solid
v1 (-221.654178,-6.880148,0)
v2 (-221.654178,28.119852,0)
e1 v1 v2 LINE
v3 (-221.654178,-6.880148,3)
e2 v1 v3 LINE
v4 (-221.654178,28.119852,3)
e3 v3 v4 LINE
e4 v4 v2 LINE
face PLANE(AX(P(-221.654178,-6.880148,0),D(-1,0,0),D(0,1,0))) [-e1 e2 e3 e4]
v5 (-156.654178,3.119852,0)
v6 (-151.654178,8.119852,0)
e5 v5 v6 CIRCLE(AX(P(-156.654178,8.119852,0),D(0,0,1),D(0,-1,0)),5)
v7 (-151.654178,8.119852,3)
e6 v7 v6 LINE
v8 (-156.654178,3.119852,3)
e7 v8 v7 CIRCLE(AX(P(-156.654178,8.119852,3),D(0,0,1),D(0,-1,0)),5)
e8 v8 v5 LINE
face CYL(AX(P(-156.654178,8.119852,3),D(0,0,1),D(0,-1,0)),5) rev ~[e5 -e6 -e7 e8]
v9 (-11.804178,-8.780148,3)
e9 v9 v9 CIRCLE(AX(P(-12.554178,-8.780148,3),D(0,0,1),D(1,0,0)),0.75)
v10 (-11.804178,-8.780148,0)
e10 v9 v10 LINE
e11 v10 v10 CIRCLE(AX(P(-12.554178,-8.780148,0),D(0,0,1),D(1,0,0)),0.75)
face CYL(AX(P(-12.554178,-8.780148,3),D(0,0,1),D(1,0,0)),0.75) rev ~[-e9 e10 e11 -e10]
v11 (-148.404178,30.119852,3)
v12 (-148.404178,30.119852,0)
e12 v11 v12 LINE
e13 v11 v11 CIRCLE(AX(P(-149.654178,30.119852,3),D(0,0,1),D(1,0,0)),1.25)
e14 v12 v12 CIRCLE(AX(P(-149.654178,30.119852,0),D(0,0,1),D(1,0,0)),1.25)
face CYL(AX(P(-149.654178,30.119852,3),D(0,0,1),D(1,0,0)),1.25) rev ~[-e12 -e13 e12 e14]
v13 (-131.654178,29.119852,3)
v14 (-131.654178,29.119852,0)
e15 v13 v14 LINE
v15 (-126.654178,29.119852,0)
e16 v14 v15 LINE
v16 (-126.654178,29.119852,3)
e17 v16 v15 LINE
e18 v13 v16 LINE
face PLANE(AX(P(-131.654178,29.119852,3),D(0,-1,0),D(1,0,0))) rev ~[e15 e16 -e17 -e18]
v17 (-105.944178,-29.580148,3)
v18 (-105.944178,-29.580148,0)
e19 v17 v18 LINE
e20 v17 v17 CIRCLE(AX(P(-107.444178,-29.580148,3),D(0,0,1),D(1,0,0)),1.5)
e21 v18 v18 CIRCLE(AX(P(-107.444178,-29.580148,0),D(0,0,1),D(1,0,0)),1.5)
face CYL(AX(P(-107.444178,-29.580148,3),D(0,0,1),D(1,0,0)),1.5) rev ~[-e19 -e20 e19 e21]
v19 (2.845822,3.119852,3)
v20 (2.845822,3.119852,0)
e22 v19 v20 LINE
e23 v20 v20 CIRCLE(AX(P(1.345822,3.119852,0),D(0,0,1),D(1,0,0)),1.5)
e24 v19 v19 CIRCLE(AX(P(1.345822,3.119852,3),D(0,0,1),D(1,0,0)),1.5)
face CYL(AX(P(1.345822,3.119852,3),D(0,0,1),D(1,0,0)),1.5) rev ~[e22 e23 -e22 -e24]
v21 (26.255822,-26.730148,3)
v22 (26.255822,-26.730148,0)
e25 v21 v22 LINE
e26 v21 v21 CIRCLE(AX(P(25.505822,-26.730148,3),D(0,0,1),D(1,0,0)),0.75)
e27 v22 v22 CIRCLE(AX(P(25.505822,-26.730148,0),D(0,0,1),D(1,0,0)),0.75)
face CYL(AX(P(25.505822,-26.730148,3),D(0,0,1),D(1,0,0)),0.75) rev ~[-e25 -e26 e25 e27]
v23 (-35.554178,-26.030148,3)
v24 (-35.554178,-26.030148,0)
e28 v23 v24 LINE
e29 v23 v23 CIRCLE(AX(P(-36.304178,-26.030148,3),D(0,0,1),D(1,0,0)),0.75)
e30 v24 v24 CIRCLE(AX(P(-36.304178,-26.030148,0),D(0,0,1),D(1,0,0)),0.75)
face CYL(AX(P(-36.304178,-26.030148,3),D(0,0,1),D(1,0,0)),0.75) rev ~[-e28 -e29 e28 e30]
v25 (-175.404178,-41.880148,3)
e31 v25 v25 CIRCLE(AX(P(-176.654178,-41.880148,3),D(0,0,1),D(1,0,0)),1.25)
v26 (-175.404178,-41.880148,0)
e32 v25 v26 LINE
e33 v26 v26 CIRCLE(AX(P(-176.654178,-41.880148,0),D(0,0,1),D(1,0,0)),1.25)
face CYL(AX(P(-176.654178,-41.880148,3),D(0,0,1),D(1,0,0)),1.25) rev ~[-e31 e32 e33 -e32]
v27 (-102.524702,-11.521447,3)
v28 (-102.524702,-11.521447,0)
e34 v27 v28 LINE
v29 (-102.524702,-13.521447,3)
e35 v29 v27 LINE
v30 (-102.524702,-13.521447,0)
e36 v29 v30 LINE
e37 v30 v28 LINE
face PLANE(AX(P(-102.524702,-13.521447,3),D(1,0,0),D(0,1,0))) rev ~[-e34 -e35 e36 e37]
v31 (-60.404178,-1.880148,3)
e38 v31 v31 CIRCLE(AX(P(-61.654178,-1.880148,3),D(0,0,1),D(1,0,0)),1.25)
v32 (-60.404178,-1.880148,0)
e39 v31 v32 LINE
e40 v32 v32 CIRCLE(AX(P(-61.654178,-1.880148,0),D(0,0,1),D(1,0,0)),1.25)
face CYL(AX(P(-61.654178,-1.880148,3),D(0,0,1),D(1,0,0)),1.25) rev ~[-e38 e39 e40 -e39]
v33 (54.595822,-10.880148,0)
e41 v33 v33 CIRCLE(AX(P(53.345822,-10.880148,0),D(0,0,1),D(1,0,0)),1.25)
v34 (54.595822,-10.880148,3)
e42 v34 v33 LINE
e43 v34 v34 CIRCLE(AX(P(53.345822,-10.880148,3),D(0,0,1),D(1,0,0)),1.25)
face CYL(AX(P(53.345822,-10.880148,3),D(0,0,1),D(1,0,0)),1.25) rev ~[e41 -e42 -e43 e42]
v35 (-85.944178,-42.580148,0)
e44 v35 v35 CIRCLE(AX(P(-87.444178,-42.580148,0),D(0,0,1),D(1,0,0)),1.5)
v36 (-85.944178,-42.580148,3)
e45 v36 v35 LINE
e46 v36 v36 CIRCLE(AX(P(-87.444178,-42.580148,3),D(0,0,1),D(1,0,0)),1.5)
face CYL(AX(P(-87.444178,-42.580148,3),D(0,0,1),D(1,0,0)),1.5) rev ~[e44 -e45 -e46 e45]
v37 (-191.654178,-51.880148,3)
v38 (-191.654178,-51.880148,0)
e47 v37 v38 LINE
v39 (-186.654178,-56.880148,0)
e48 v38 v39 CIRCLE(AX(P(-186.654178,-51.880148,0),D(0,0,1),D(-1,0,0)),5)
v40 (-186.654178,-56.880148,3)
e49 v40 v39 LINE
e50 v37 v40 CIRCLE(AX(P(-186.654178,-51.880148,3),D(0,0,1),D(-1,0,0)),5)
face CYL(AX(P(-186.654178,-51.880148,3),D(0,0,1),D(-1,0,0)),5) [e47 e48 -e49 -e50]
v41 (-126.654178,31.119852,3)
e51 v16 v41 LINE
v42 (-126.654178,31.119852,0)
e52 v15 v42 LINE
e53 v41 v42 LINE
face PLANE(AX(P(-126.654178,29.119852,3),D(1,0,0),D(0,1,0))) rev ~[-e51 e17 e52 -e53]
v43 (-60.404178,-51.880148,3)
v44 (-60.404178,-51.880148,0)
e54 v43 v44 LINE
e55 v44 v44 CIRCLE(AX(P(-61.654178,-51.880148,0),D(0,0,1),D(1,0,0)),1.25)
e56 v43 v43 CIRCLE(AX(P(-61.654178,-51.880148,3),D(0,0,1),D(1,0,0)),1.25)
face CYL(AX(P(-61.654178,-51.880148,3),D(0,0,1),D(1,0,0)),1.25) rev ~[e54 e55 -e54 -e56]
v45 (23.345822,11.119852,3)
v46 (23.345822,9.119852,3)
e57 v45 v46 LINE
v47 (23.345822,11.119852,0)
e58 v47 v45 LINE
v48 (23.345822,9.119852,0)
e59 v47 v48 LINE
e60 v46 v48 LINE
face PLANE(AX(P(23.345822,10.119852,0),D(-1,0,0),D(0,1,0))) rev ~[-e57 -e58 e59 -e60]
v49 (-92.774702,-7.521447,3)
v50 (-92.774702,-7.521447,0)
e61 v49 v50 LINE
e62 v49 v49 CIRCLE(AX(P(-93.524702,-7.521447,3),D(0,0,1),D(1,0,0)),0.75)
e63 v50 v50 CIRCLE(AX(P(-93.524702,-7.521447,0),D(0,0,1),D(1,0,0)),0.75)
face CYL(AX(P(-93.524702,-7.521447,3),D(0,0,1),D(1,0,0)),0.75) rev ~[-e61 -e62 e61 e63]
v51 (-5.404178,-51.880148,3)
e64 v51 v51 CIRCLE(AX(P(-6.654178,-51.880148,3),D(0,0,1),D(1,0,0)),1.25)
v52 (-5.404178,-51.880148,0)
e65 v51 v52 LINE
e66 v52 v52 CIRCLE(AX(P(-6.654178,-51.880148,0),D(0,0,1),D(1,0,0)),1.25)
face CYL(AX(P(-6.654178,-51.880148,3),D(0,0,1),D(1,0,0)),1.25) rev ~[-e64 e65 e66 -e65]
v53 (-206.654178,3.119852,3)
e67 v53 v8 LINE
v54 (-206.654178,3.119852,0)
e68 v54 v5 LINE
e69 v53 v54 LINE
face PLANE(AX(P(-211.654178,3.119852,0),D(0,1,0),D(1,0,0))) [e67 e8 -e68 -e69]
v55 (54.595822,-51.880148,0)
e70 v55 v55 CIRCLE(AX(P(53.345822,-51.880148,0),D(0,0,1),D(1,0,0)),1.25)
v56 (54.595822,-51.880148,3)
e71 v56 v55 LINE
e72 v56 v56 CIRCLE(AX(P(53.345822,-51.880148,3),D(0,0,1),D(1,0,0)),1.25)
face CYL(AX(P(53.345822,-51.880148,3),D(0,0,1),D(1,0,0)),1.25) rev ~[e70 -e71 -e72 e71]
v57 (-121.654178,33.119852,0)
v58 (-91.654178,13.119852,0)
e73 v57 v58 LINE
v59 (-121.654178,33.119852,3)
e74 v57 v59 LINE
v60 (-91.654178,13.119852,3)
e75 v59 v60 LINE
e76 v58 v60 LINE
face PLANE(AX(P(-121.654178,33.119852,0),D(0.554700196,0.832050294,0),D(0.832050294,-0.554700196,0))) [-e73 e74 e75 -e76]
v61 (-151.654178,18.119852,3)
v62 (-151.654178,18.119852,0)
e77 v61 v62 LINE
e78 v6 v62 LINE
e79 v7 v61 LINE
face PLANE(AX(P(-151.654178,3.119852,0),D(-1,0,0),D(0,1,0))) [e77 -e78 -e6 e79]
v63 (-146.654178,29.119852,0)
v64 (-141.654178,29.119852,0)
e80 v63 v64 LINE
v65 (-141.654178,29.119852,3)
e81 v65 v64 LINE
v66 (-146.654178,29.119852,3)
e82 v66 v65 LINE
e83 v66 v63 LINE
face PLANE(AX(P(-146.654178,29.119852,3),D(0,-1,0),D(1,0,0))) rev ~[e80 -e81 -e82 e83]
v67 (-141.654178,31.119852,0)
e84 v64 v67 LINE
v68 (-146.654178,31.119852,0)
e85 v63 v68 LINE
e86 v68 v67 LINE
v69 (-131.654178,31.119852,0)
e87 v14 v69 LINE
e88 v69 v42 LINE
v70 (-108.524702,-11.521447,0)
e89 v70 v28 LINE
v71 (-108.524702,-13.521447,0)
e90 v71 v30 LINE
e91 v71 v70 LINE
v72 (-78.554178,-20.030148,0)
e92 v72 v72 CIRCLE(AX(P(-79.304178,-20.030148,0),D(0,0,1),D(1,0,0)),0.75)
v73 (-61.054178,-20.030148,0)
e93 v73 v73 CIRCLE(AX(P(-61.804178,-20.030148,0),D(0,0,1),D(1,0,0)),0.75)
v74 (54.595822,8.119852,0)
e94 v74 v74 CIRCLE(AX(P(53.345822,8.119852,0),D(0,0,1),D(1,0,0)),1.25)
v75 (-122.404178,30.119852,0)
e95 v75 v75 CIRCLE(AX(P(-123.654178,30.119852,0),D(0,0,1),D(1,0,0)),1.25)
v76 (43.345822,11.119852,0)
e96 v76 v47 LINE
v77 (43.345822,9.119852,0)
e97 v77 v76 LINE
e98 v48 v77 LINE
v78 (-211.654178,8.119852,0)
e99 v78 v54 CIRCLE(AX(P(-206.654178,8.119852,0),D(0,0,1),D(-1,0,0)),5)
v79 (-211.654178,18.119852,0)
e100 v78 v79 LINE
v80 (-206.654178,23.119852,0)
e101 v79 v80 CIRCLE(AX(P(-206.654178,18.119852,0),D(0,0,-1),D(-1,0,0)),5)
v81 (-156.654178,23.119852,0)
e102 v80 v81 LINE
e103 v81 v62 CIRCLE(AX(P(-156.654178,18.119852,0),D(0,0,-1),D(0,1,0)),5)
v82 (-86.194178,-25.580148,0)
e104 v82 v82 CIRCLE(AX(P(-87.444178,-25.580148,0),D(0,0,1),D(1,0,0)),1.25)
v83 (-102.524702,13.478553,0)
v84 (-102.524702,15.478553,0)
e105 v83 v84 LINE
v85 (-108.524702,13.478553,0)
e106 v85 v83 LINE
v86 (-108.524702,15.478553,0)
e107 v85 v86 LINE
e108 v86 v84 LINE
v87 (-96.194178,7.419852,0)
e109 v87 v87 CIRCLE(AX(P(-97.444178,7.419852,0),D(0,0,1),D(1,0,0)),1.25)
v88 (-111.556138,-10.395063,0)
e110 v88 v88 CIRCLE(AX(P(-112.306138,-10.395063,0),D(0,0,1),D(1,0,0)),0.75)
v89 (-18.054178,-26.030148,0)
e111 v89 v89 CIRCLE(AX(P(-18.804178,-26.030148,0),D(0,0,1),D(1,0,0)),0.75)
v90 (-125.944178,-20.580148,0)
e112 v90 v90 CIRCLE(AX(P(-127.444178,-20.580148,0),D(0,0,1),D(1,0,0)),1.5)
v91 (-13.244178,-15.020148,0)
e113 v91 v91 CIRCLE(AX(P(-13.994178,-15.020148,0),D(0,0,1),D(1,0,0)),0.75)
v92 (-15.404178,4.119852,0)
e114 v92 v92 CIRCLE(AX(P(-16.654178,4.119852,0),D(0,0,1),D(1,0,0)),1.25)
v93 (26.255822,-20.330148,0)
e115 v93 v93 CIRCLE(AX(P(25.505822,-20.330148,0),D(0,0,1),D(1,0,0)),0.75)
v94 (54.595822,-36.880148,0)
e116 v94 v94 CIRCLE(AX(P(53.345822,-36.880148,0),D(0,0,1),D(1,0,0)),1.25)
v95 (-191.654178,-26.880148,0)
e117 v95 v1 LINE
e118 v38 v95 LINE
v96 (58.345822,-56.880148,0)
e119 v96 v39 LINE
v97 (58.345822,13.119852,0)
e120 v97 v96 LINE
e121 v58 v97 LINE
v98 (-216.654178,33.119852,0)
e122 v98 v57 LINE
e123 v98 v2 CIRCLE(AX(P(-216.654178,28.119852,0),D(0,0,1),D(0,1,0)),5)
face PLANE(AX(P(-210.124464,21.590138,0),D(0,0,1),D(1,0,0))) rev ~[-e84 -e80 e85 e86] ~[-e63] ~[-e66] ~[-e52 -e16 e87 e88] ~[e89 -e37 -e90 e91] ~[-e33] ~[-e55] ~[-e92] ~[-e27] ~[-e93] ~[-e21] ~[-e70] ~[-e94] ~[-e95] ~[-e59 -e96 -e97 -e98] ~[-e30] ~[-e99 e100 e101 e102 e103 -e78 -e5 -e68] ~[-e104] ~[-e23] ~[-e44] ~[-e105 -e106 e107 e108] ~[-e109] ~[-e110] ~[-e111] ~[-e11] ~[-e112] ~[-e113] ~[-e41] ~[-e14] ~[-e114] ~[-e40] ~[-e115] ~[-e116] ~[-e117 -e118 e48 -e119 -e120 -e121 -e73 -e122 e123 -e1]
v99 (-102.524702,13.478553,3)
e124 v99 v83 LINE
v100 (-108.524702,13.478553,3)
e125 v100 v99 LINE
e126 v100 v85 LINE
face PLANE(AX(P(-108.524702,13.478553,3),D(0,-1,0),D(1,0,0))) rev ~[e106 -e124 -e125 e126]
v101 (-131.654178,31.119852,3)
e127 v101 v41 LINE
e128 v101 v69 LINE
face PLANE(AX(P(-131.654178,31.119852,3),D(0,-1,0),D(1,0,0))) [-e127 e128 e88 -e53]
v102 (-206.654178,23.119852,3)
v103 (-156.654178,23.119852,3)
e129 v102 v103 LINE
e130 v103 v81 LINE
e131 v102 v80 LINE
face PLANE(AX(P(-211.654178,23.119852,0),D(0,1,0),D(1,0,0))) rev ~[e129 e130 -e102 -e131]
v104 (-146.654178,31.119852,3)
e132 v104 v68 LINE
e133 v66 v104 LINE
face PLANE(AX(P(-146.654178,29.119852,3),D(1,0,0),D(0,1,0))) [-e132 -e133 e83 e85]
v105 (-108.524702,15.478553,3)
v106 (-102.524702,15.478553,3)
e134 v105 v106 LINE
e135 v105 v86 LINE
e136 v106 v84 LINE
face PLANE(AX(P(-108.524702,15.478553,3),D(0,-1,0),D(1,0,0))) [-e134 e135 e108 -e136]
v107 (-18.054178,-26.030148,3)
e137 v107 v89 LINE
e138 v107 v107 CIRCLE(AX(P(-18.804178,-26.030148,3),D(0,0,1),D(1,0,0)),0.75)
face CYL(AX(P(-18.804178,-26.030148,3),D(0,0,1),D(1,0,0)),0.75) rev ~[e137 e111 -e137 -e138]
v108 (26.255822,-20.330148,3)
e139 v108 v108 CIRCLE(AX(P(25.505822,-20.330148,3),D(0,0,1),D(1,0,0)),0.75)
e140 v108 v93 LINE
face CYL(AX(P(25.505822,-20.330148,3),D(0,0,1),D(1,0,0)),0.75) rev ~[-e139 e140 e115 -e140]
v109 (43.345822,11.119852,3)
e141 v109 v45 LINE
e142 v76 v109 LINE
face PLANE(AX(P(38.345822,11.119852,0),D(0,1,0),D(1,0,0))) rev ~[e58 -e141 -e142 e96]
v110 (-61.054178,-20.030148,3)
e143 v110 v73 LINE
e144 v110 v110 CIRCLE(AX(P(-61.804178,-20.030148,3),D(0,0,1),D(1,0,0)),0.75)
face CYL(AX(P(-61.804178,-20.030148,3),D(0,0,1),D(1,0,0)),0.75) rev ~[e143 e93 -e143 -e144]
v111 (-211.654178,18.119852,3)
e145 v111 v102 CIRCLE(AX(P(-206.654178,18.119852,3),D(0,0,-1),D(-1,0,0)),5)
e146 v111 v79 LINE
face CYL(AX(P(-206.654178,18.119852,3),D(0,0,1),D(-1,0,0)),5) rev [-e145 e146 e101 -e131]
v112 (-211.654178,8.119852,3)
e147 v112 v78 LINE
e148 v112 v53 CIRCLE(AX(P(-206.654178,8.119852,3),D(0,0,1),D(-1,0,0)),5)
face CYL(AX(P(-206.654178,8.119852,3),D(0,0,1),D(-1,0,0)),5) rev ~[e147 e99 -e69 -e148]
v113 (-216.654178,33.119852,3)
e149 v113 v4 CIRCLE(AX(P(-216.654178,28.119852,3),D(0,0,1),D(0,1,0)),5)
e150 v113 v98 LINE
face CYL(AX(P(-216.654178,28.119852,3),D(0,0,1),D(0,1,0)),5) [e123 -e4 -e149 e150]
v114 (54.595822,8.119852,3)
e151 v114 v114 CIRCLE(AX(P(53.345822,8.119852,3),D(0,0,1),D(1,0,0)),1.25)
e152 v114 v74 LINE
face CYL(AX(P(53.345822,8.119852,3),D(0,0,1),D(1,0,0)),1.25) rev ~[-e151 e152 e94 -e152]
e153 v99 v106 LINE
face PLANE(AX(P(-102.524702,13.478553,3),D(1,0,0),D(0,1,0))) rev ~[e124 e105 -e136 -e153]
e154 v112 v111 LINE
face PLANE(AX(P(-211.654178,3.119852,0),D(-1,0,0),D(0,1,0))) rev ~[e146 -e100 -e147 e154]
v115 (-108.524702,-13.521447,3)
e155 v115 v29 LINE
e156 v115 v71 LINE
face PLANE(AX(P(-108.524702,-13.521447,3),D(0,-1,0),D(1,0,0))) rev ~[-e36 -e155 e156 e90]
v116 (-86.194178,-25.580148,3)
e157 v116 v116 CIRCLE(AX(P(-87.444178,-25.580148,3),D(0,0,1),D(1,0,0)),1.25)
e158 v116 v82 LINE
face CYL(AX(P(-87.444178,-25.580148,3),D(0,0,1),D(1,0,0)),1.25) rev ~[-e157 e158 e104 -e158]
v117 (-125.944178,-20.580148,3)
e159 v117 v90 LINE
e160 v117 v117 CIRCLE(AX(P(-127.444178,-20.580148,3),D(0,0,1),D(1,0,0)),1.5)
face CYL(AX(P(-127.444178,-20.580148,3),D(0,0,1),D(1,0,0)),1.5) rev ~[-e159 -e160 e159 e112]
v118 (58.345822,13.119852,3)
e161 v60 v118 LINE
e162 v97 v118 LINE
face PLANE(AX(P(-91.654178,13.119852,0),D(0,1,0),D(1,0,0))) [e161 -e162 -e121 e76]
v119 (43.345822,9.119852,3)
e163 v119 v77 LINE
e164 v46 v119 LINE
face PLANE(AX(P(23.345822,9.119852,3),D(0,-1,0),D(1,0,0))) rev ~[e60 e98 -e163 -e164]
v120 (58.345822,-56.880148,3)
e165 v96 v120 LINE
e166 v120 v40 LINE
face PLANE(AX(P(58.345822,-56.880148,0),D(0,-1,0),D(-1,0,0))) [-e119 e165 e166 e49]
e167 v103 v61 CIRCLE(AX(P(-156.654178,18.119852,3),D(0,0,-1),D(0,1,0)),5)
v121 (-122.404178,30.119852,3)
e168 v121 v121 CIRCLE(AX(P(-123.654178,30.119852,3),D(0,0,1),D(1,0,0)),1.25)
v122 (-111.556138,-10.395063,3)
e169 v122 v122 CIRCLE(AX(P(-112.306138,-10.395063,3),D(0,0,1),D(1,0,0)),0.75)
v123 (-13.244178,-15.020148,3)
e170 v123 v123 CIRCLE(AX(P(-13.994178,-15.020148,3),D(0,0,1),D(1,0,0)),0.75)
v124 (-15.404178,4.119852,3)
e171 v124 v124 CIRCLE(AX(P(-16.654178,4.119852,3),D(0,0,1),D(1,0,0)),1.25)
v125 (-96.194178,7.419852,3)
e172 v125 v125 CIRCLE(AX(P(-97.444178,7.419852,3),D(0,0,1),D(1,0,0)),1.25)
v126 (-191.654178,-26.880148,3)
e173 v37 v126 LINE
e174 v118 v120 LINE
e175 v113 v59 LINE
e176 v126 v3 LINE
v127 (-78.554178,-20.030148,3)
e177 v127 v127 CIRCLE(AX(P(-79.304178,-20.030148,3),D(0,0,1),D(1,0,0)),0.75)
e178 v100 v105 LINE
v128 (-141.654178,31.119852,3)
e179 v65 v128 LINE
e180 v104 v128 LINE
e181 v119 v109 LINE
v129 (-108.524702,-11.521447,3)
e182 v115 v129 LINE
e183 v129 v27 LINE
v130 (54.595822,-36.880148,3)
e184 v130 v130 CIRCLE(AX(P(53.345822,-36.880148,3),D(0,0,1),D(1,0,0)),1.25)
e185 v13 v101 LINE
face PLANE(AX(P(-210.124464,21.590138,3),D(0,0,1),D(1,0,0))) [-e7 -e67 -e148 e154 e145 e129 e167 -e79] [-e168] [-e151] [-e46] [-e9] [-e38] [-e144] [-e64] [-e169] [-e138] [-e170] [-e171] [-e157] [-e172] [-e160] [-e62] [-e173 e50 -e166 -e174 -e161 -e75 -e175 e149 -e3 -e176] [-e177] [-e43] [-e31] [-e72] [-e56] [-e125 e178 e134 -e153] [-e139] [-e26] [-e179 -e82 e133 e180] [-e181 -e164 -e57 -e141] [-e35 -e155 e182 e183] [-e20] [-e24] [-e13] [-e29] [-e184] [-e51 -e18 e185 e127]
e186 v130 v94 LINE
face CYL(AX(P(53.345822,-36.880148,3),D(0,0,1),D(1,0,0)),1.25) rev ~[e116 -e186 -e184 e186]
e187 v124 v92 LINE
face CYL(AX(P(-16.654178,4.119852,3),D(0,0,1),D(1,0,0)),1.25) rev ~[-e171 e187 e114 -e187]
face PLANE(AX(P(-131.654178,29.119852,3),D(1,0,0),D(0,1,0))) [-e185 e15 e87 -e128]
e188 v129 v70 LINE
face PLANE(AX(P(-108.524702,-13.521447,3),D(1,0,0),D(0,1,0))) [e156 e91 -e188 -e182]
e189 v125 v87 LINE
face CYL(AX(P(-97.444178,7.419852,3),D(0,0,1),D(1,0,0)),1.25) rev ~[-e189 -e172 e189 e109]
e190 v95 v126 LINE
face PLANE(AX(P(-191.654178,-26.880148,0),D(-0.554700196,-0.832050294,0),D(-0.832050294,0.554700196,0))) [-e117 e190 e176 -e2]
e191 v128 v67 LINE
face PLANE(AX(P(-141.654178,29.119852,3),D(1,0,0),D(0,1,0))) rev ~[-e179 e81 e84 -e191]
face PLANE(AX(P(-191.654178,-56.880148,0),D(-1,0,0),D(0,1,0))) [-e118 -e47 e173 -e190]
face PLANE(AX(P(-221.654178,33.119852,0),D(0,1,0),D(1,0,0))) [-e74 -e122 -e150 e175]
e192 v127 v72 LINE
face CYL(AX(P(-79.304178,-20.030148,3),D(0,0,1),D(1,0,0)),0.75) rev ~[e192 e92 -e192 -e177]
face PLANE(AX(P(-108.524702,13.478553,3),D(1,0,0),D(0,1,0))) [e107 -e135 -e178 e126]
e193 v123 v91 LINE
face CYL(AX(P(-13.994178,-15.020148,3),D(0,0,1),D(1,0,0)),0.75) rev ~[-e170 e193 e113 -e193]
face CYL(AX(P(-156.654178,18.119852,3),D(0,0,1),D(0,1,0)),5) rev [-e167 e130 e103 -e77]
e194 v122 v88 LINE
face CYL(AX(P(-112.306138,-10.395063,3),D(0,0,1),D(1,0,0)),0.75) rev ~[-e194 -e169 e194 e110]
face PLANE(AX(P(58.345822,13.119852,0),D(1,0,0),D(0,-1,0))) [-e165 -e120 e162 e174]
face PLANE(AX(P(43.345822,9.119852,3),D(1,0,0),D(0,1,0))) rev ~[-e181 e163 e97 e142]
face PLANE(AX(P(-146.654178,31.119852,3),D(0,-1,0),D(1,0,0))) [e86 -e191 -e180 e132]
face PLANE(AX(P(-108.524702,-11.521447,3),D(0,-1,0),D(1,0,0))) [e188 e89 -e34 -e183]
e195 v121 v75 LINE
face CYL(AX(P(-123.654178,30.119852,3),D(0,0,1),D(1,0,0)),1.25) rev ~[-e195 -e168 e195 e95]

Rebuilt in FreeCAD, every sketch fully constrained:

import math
import FreeCAD as App
import Part
import Sketcher

V = App.Vector
Q = App.Units.Quantity


def add_polygon(sketch, points):
    """Adds a closed chain of lines whose ends are joined by coincident constraints."""
    first, n = sketch.GeometryCount, len(points)
    for a, b in zip(points, points[1:] + points[:1]):
        sketch.addGeometry(Part.LineSegment(App.Vector(*a, 0), App.Vector(*b, 0)), False)
    for i in range(n):
        sketch.addConstraint(Sketcher.Constraint("Coincident", first + i, 2, first + (i + 1) % n, 1))

doc = App.newDocument("Part")
body = doc.addObject("PartDesign::Body", "Body")

sketch1 = body.newObject("Sketcher::SketchObject", "Sketch")
sketch1.AttachmentSupport = (doc.getObject("XY_Plane"), [""])
sketch1.MapMode = "FlatFace"
add_polygon(sketch1, [(58.3, -56.9), (58.3, 13.1), (-91.7, 13.1), (-121.7, 33.1), (-221.7, 33.1), (-221.7, -6.9), (-191.7, -26.9), (-191.7, -56.9)])
sketch1.addGeometry(Part.Circle(V(53.3, -52.1, 0), V(0, 0, 1), 1.2), False)
sketch1.addGeometry(Part.Circle(V(25.5, -18.3, 0), V(0, 0, 1), 0.8), False)
sketch1.addGeometry(Part.Circle(V(53.3, 7.9, 0), V(0, 0, 1), 1.2), False)
add_polygon(sketch1, [(38.3, 10.1), (38.3, 11.1), (43.3, 11.1), (43.3, 10.1)])
add_polygon(sketch1, [(23.3, 10.1), (23.3, 11.1), (28.3, 11.1), (28.3, 10.1)])
add_polygon(sketch1, [(-211.7, 3.1), (-211.7, 23.1), (-151.7, 23.1), (-151.7, 3.1)])
sketch1.addConstraint([
    Sketcher.Constraint("Vertical", 0),
    Sketcher.Constraint("Horizontal", 1),
    Sketcher.Constraint("Horizontal", 3),
    Sketcher.Constraint("Vertical", 4),
    Sketcher.Constraint("Vertical", 6),
    Sketcher.Constraint("Horizontal", 7),
    Sketcher.Constraint("Vertical", 11),
    Sketcher.Constraint("Horizontal", 12),
    Sketcher.Constraint("Vertical", 13),
    Sketcher.Constraint("Horizontal", 14),
    Sketcher.Constraint("Vertical", 15),
    Sketcher.Constraint("Horizontal", 16),
    Sketcher.Constraint("Vertical", 17),
    Sketcher.Constraint("Horizontal", 18),
    Sketcher.Constraint("Vertical", 19),
    Sketcher.Constraint("Horizontal", 20),
    Sketcher.Constraint("Vertical", 21),
    Sketcher.Constraint("Horizontal", 22),
    Sketcher.Constraint("Equal", 8, 10),
    Sketcher.Constraint("Parallel", 2, 5),
    Sketcher.Constraint("Horizontal", 12, 2, 15, 2),
    Sketcher.Constraint("Horizontal", 14, 2, 17, 2),
    Sketcher.Constraint("Vertical", 8, 3, 10, 3),
    Sketcher.Constraint("Equal", 14, 16),
    Sketcher.Constraint("Equal", 2, 5),
    Sketcher.Constraint("Diameter", 8, Q("2.5 mm")),
    Sketcher.Constraint("Diameter", 9, Q("1.5 mm")),
    Sketcher.Constraint("DistanceX", 1, 2, 1, 1, Q("150 mm")),
    Sketcher.Constraint("DistanceX", 3, 2, 3, 1, Q("100 mm")),
    Sketcher.Constraint("DistanceX", 12, 1, 12, 2, Q("5 mm")),
    Sketcher.Constraint("DistanceX", 20, 1, 20, 2, Q("60 mm")),
    Sketcher.Constraint("DistanceY", 0, 1, 0, 2, Q("70 mm")),
    Sketcher.Constraint("DistanceY", 4, 2, 4, 1, Q("40 mm")),
    Sketcher.Constraint("DistanceY", 11, 1, 11, 2, Q("1 mm")),
    Sketcher.Constraint("DistanceY", 19, 1, 19, 2, Q("20 mm")),
    Sketcher.Constraint("DistanceY", 8, 3, 10, 3, Q("60 mm")),
    Sketcher.Constraint("DistanceX", 10, 3, 0, 2, Q("5 mm")),
    Sketcher.Constraint("DistanceX", 2, 2, 1, 2, Q("30 mm")),
    Sketcher.Constraint("DistanceY", 1, 2, 2, 2, Q("20 mm")),
    Sketcher.Constraint("DistanceX", 11, 2, 10, 3, Q("15 mm")),
    Sketcher.Constraint("DistanceY", 11, 2, 0, 2, Q("2 mm")),
    Sketcher.Constraint("DistanceX", 15, 2, 11, 2, Q("15 mm")),
    Sketcher.Constraint("DistanceX", 3, 2, 19, 2, Q("10 mm")),
    Sketcher.Constraint("DistanceY", 19, 2, 3, 2, Q("10 mm")),
    Sketcher.Constraint("DistanceX", 9, 3, 8, 3, Q("27.84 mm")),
    Sketcher.Constraint("DistanceY", 9, 3, 0, 2, Q("31.45 mm")),
    Sketcher.Constraint("DistanceX", -1, 1, 8, 3, Q("53.345822 mm")),
    Sketcher.Constraint("DistanceY", 8, 3, -1, 1, Q("52.054458 mm")),
    Sketcher.Constraint("DistanceY", 8, 3, 9, 3, Q("33.72431 mm")),
])
pad1 = body.newObject("PartDesign::Pad", "Pad")
pad1.Profile = sketch1
pad1.Length = 3

sketch2 = body.newObject("Sketcher::SketchObject", "Sketch001")
sketch2.AttachmentSupport = (doc.getObject("XY_Plane"), [""])
sketch2.MapMode = "FlatFace"
sketch2.AttachmentOffset = App.Placement(V(0, 0, 3), App.Rotation())
sketch2.addGeometry(Part.Circle(V(-12.6, -8.8, 0), V(0, 0, 1), 0.8), False)
sketch2.addConstraint([
    Sketcher.Constraint("Diameter", 0, Q("1.5 mm")),
    Sketcher.Constraint("DistanceX", 0, 3, -1, 1, Q("12.554178 mm")),
    Sketcher.Constraint("DistanceY", 0, 3, -1, 1, Q("8.780148 mm")),
])
pocket1 = body.newObject("PartDesign::Pocket", "Pocket")
pocket1.Profile = sketch2
pocket1.Length = 3

sketch3 = body.newObject("Sketcher::SketchObject", "Sketch002")
sketch3.AttachmentSupport = (doc.getObject("XY_Plane"), [""])
sketch3.MapMode = "FlatFace"
sketch3.AttachmentOffset = App.Placement(V(0, 0, 3), App.Rotation())
sketch3.addGeometry(Part.Circle(V(-14, -15, 0), V(0, 0, 1), 0.8), False)
sketch3.addConstraint([
    Sketcher.Constraint("Diameter", 0, Q("1.5 mm")),
    Sketcher.Constraint("DistanceX", 0, 3, -1, 1, Q("13.994178 mm")),
    Sketcher.Constraint("DistanceY", 0, 3, -1, 1, Q("15.020148 mm")),
])
pocket2 = body.newObject("PartDesign::Pocket", "Pocket001")
pocket2.Profile = sketch3
pocket2.Length = 3

sketch4 = body.newObject("Sketcher::SketchObject", "Sketch003")
sketch4.AttachmentSupport = (doc.getObject("XY_Plane"), [""])
sketch4.MapMode = "FlatFace"
sketch4.AttachmentOffset = App.Placement(V(0, 0, 3), App.Rotation())
sketch4.addGeometry([
    Part.Circle(V(25.5, -20.3, 0), V(0, 0, 1), 0.8),
    Part.Circle(V(25.5, -26.7, 0), V(0, 0, 1), 0.8),
], False)
sketch4.addConstraint([
    Sketcher.Constraint("Equal", 0, 1),
    Sketcher.Constraint("Vertical", 0, 3, 1, 3),
    Sketcher.Constraint("Diameter", 0, Q("1.5 mm")),
    Sketcher.Constraint("DistanceY", 1, 3, 0, 3, Q("6.4 mm")),
    Sketcher.Constraint("DistanceX", -1, 1, 0, 3, Q("25.505822 mm")),
    Sketcher.Constraint("DistanceY", 0, 3, -1, 1, Q("20.330148 mm")),
])
pocket3 = body.newObject("PartDesign::Pocket", "Pocket002")
pocket3.Profile = sketch4
pocket3.Length = 10

sketch5 = body.newObject("Sketcher::SketchObject", "Sketch004")
sketch5.AttachmentSupport = (doc.getObject("XY_Plane"), [""])
sketch5.MapMode = "FlatFace"
sketch5.addGeometry(Part.Circle(V(25.5, -18.3, 0), V(0, 0, 1), 0.8), False)
sketch5.addConstraint([
    Sketcher.Constraint("Diameter", 0, Q("1.5 mm")),
    Sketcher.Constraint("DistanceX", -1, 1, 0, 3, Q("25.505822 mm")),
    Sketcher.Constraint("DistanceY", 0, 3, -1, 1, Q("18.330148 mm")),
])
pad2 = body.newObject("PartDesign::Pad", "Pad001")
pad2.Profile = sketch5
pad2.Length = 3

sketch6 = body.newObject("Sketcher::SketchObject", "Sketch005")
sketch6.AttachmentSupport = (doc.getObject("XY_Plane"), [""])
sketch6.MapMode = "FlatFace"
sketch6.AttachmentOffset = App.Placement(V(0, 0, 3), App.Rotation())
sketch6.addGeometry(Part.Circle(V(-16.7, 4.1, 0), V(0, 0, 1), 1.2), False)
sketch6.addConstraint([
    Sketcher.Constraint("Diameter", 0, Q("2.5 mm")),
    Sketcher.Constraint("DistanceX", 0, 3, -1, 1, Q("16.654178 mm")),
    Sketcher.Constraint("DistanceY", -1, 1, 0, 3, Q("4.119852 mm")),
])
pocket4 = body.newObject("PartDesign::Pocket", "Pocket003")
pocket4.Profile = sketch6
pocket4.Length = 3

sketch7 = body.newObject("Sketcher::SketchObject", "Sketch006")
sketch7.AttachmentSupport = (doc.getObject("XY_Plane"), [""])
sketch7.MapMode = "FlatFace"
sketch7.AttachmentOffset = App.Placement(V(0, 0, 3), App.Rotation())
sketch7.addGeometry(Part.Circle(V(-93.5, -7.5, 0), V(0, 0, 1), 0.8), False)
sketch7.addConstraint([
    Sketcher.Constraint("Diameter", 0, Q("1.5 mm")),
    Sketcher.Constraint("DistanceX", 0, 3, -1, 1, Q("93.524702 mm")),
    Sketcher.Constraint("DistanceY", 0, 3, -1, 1, Q("7.521447 mm")),
])
pocket5 = body.newObject("PartDesign::Pocket", "Pocket004")
pocket5.Profile = sketch7
pocket5.Length = 10

sketch8 = body.newObject("Sketcher::SketchObject", "Sketch007")
sketch8.AttachmentSupport = (doc.getObject("XY_Plane"), [""])
sketch8.MapMode = "FlatFace"
sketch8.AttachmentOffset = App.Placement(V(0, 0, 3), App.Rotation())
add_polygon(sketch8, [(28.3, 11.1), (28.3, 10.1), (38.3, 10.1), (38.3, 11.1)])
sketch8.addConstraint([
    Sketcher.Constraint("Vertical", 0),
    Sketcher.Constraint("Horizontal", 1),
    Sketcher.Constraint("Vertical", 2),
    Sketcher.Constraint("Horizontal", 3),
    Sketcher.Constraint("DistanceX", 1, 1, 1, 2, Q("10 mm")),
    Sketcher.Constraint("DistanceY", 0, 2, 0, 1, Q("1 mm")),
    Sketcher.Constraint("DistanceX", -1, 1, 0, 2, Q("28.345822 mm")),
    Sketcher.Constraint("DistanceY", -1, 1, 0, 2, Q("10.119852 mm")),
])
pocket6 = body.newObject("PartDesign::Pocket", "Pocket005")
pocket6.Profile = sketch8
pocket6.Length = 3

sketch9 = body.newObject("Sketcher::SketchObject", "Sketch008")
sketch9.AttachmentSupport = (doc.getObject("XY_Plane"), [""])
sketch9.MapMode = "FlatFace"
sketch9.AttachmentOffset = App.Placement(V(0, 0, 3), App.Rotation())
sketch9.addGeometry(Part.Circle(V(-97.4, 7.4, 0), V(0, 0, 1), 1.2), False)
sketch9.addConstraint([
    Sketcher.Constraint("Diameter", 0, Q("2.5 mm")),
    Sketcher.Constraint("DistanceX", 0, 3, -1, 1, Q("97.444178 mm")),
    Sketcher.Constraint("DistanceY", -1, 1, 0, 3, Q("7.419852 mm")),
])
pocket7 = body.newObject("PartDesign::Pocket", "Pocket006")
pocket7.Profile = sketch9
pocket7.Length = 3

sketch10 = body.newObject("Sketcher::SketchObject", "Sketch009")
sketch10.AttachmentSupport = (doc.getObject("XY_Plane"), [""])
sketch10.MapMode = "FlatFace"
sketch10.AttachmentOffset = App.Placement(V(0, 0, 3), App.Rotation())
sketch10.addGeometry(Part.Circle(V(-176.7, -41.9, 0), V(0, 0, 1), 1.2), False)
sketch10.addConstraint([
    Sketcher.Constraint("Diameter", 0, Q("2.5 mm")),
    Sketcher.Constraint("DistanceX", 0, 3, -1, 1, Q("176.654178 mm")),
    Sketcher.Constraint("DistanceY", 0, 3, -1, 1, Q("41.880148 mm")),
])
pocket8 = body.newObject("PartDesign::Pocket", "Pocket007")
pocket8.Profile = sketch10
pocket8.Length = 3

sketch11 = body.newObject("Sketcher::SketchObject", "Sketch010")
sketch11.AttachmentSupport = (doc.getObject("XY_Plane"), [""])
sketch11.MapMode = "FlatFace"
sketch11.AttachmentOffset = App.Placement(V(0, 0, 3), App.Rotation())
add_polygon(sketch11, [(-131.7, 31.1), (-131.7, 29.1), (-126.7, 29.1), (-126.7, 31.1)])
sketch11.addConstraint([
    Sketcher.Constraint("Vertical", 0),
    Sketcher.Constraint("Horizontal", 1),
    Sketcher.Constraint("Vertical", 2),
    Sketcher.Constraint("Horizontal", 3),
    Sketcher.Constraint("DistanceX", 1, 1, 1, 2, Q("5 mm")),
    Sketcher.Constraint("DistanceY", 0, 2, 0, 1, Q("2 mm")),
    Sketcher.Constraint("DistanceX", 0, 2, -1, 1, Q("131.654178 mm")),
    Sketcher.Constraint("DistanceY", -1, 1, 0, 2, Q("29.119852 mm")),
])
pocket9 = body.newObject("PartDesign::Pocket", "Pocket008")
pocket9.Profile = sketch11
pocket9.Length = 3

sketch12 = body.newObject("Sketcher::SketchObject", "Sketch011")
sketch12.AttachmentSupport = (doc.getObject("XY_Plane"), [""])
sketch12.MapMode = "FlatFace"
sketch12.AttachmentOffset = App.Placement(V(0, 0, 3), App.Rotation())
add_polygon(sketch12, [(-146.7, 31.1), (-146.7, 29.1), (-141.7, 29.1), (-141.7, 31.1)])
sketch12.addConstraint([
    Sketcher.Constraint("Vertical", 0),
    Sketcher.Constraint("Horizontal", 1),
    Sketcher.Constraint("Vertical", 2),
    Sketcher.Constraint("Horizontal", 3),
    Sketcher.Constraint("DistanceX", 1, 1, 1, 2, Q("5 mm")),
    Sketcher.Constraint("DistanceY", 0, 2, 0, 1, Q("2 mm")),
    Sketcher.Constraint("DistanceX", 0, 2, -1, 1, Q("146.654178 mm")),
    Sketcher.Constraint("DistanceY", -1, 1, 0, 2, Q("29.119852 mm")),
])
pocket10 = body.newObject("PartDesign::Pocket", "Pocket009")
pocket10.Profile = sketch12
pocket10.Length = 3

sketch13 = body.newObject("Sketcher::SketchObject", "Sketch012")
sketch13.AttachmentSupport = (doc.getObject("XY_Plane"), [""])
sketch13.MapMode = "FlatFace"
sketch13.AttachmentOffset = App.Placement(V(0, 0, 3), App.Rotation())
sketch13.addGeometry([
    Part.Circle(V(-123.7, 30.1, 0), V(0, 0, 1), 1.2),
    Part.Circle(V(-149.7, 30.1, 0), V(0, 0, 1), 1.2),
], False)
sketch13.addConstraint([
    Sketcher.Constraint("Equal", 0, 1),
    Sketcher.Constraint("Horizontal", 0, 3, 1, 3),
    Sketcher.Constraint("Diameter", 0, Q("2.5 mm")),
    Sketcher.Constraint("DistanceX", 1, 3, 0, 3, Q("26 mm")),
    Sketcher.Constraint("DistanceX", 0, 3, -1, 1, Q("123.654178 mm")),
    Sketcher.Constraint("DistanceY", -1, 1, 0, 3, Q("30.119852 mm")),
])
pocket11 = body.newObject("PartDesign::Pocket", "Pocket010")
pocket11.Profile = sketch13
pocket11.Length = 3

sketch14 = body.newObject("Sketcher::SketchObject", "Sketch013")
sketch14.AttachmentSupport = (doc.getObject("XY_Plane"), [""])
sketch14.MapMode = "FlatFace"
sketch14.AttachmentOffset = App.Placement(V(0, 0, 3), App.Rotation())
sketch14.addGeometry(Part.Circle(V(-61.7, -1.9, 0), V(0, 0, 1), 1.2), False)
sketch14.addConstraint([
    Sketcher.Constraint("Diameter", 0, Q("2.5 mm")),
    Sketcher.Constraint("DistanceX", 0, 3, -1, 1, Q("61.654178 mm")),
    Sketcher.Constraint("DistanceY", 0, 3, -1, 1, Q("1.880148 mm")),
])
pocket12 = body.newObject("PartDesign::Pocket", "Pocket011")
pocket12.Profile = sketch14
pocket12.Length = 3

sketch15 = body.newObject("Sketcher::SketchObject", "Sketch014")
sketch15.AttachmentSupport = (doc.getObject("XY_Plane"), [""])
sketch15.MapMode = "FlatFace"
sketch15.AttachmentOffset = App.Placement(V(0, 0, 3), App.Rotation())
sketch15.addGeometry(Part.Circle(V(-87.4, -25.6, 0), V(0, 0, 1), 1.2), False)
sketch15.addConstraint([
    Sketcher.Constraint("Diameter", 0, Q("2.5 mm")),
    Sketcher.Constraint("DistanceX", 0, 3, -1, 1, Q("87.444178 mm")),
    Sketcher.Constraint("DistanceY", 0, 3, -1, 1, Q("25.580148 mm")),
])
pocket13 = body.newObject("PartDesign::Pocket", "Pocket012")
pocket13.Profile = sketch15
pocket13.Length = 3

sketch16 = body.newObject("Sketcher::SketchObject", "Sketch015")
sketch16.AttachmentSupport = (doc.getObject("XY_Plane"), [""])
sketch16.MapMode = "FlatFace"
sketch16.AttachmentOffset = App.Placement(V(0, 0, 3), App.Rotation())
sketch16.addGeometry(Part.Circle(V(-112.3, -10.4, 0), V(0, 0, 1), 0.8), False)
sketch16.addConstraint([
    Sketcher.Constraint("Diameter", 0, Q("1.5 mm")),
    Sketcher.Constraint("DistanceX", 0, 3, -1, 1, Q("112.306138 mm")),
    Sketcher.Constraint("DistanceY", 0, 3, -1, 1, Q("10.395063 mm")),
])
pocket14 = body.newObject("PartDesign::Pocket", "Pocket013")
pocket14.Profile = sketch16
pocket14.Length = 3

sketch17 = body.newObject("Sketcher::SketchObject", "Sketch016")
sketch17.AttachmentSupport = (doc.getObject("XY_Plane"), [""])
sketch17.MapMode = "FlatFace"
sketch17.AttachmentOffset = App.Placement(V(0, 0, 3), App.Rotation())
add_polygon(sketch17, [(-108.5, -11.5), (-108.5, -13.5), (-102.5, -13.5), (-102.5, -11.5)])
sketch17.addConstraint([
    Sketcher.Constraint("Vertical", 0),
    Sketcher.Constraint("Horizontal", 1),
    Sketcher.Constraint("Vertical", 2),
    Sketcher.Constraint("Horizontal", 3),
    Sketcher.Constraint("DistanceX", 1, 1, 1, 2, Q("6 mm")),
    Sketcher.Constraint("DistanceY", 0, 2, 0, 1, Q("2 mm")),
    Sketcher.Constraint("DistanceX", 0, 2, -1, 1, Q("108.524702 mm")),
    Sketcher.Constraint("DistanceY", 0, 2, -1, 1, Q("13.521447 mm")),
])
pocket15 = body.newObject("PartDesign::Pocket", "Pocket014")
pocket15.Profile = sketch17
pocket15.Length = 3

sketch18 = body.newObject("Sketcher::SketchObject", "Sketch017")
sketch18.AttachmentSupport = (doc.getObject("XY_Plane"), [""])
sketch18.MapMode = "FlatFace"
sketch18.AttachmentOffset = App.Placement(V(0, 0, 3), App.Rotation())
add_polygon(sketch18, [(-108.5, 15.5), (-108.5, 13.5), (-102.5, 13.5), (-102.5, 15.5)])
sketch18.addConstraint([
    Sketcher.Constraint("Vertical", 0),
    Sketcher.Constraint("Horizontal", 1),
    Sketcher.Constraint("Vertical", 2),
    Sketcher.Constraint("Horizontal", 3),
    Sketcher.Constraint("DistanceX", 1, 1, 1, 2, Q("6 mm")),
    Sketcher.Constraint("DistanceY", 0, 2, 0, 1, Q("2 mm")),
    Sketcher.Constraint("DistanceX", 0, 2, -1, 1, Q("108.524702 mm")),
    Sketcher.Constraint("DistanceY", -1, 1, 0, 2, Q("13.478553 mm")),
])
pocket16 = body.newObject("PartDesign::Pocket", "Pocket015")
pocket16.Profile = sketch18
pocket16.Length = 3

sketch19 = body.newObject("Sketcher::SketchObject", "Sketch018")
sketch19.AttachmentSupport = (doc.getObject("XY_Plane"), [""])
sketch19.MapMode = "FlatFace"
sketch19.addGeometry(Part.Circle(V(53.3, -52.1, 0), V(0, 0, 1), 1.2), False)
sketch19.addConstraint([
    Sketcher.Constraint("Diameter", 0, Q("2.5 mm")),
    Sketcher.Constraint("DistanceX", -1, 1, 0, 3, Q("53.345822 mm")),
    Sketcher.Constraint("DistanceY", 0, 3, -1, 1, Q("52.054458 mm")),
])
pad3 = body.newObject("PartDesign::Pad", "Pad002")
pad3.Profile = sketch19
pad3.Length = 3

sketch20 = body.newObject("Sketcher::SketchObject", "Sketch019")
sketch20.AttachmentSupport = (doc.getObject("XY_Plane"), [""])
sketch20.MapMode = "FlatFace"
sketch20.addGeometry(Part.Circle(V(53.3, 7.9, 0), V(0, 0, 1), 1.2), False)
sketch20.addConstraint([
    Sketcher.Constraint("Diameter", 0, Q("2.5 mm")),
    Sketcher.Constraint("DistanceX", -1, 1, 0, 3, Q("53.345822 mm")),
    Sketcher.Constraint("DistanceY", -1, 1, 0, 3, Q("7.945542 mm")),
])
pad4 = body.newObject("PartDesign::Pad", "Pad003")
pad4.Profile = sketch20
pad4.Length = 3

sketch21 = body.newObject("Sketcher::SketchObject", "Sketch020")
sketch21.AttachmentSupport = (doc.getObject("XY_Plane"), [""])
sketch21.MapMode = "FlatFace"
sketch21.AttachmentOffset = App.Placement(V(0, 0, 3), App.Rotation())
sketch21.addGeometry(Part.Circle(V(53.3, 8.1, 0), V(0, 0, 1), 1.2), False)
sketch21.addConstraint([
    Sketcher.Constraint("Diameter", 0, Q("2.5 mm")),
    Sketcher.Constraint("DistanceX", -1, 1, 0, 3, Q("53.345822 mm")),
    Sketcher.Constraint("DistanceY", -1, 1, 0, 3, Q("8.119852 mm")),
])
pocket17 = body.newObject("PartDesign::Pocket", "Pocket016")
pocket17.Profile = sketch21
pocket17.Length = 3

sketch22 = body.newObject("Sketcher::SketchObject", "Sketch021")
sketch22.AttachmentSupport = (doc.getObject("XY_Plane"), [""])
sketch22.MapMode = "FlatFace"
sketch22.AttachmentOffset = App.Placement(V(0, 0, 3), App.Rotation())
sketch22.addGeometry(Part.Circle(V(53.3, -10.9, 0), V(0, 0, 1), 1.2), False)
sketch22.addConstraint([
    Sketcher.Constraint("Diameter", 0, Q("2.5 mm")),
    Sketcher.Constraint("DistanceX", -1, 1, 0, 3, Q("53.345822 mm")),
    Sketcher.Constraint("DistanceY", 0, 3, -1, 1, Q("10.880148 mm")),
])
pocket18 = body.newObject("PartDesign::Pocket", "Pocket017")
pocket18.Profile = sketch22
pocket18.Length = 3

sketch23 = body.newObject("Sketcher::SketchObject", "Sketch022")
sketch23.AttachmentSupport = (doc.getObject("XY_Plane"), [""])
sketch23.MapMode = "FlatFace"
sketch23.AttachmentOffset = App.Placement(V(0, 0, 3), App.Rotation())
sketch23.addGeometry(Part.Circle(V(53.3, -36.9, 0), V(0, 0, 1), 1.2), False)
sketch23.addConstraint([
    Sketcher.Constraint("Diameter", 0, Q("2.5 mm")),
    Sketcher.Constraint("DistanceX", -1, 1, 0, 3, Q("53.345822 mm")),
    Sketcher.Constraint("DistanceY", 0, 3, -1, 1, Q("36.880148 mm")),
])
pocket19 = body.newObject("PartDesign::Pocket", "Pocket018")
pocket19.Profile = sketch23
pocket19.Length = 3

sketch24 = body.newObject("Sketcher::SketchObject", "Sketch023")
sketch24.AttachmentSupport = (doc.getObject("XY_Plane"), [""])
sketch24.MapMode = "FlatFace"
sketch24.AttachmentOffset = App.Placement(V(0, 0, 3), App.Rotation())
sketch24.addGeometry(Part.Circle(V(53.3, -51.9, 0), V(0, 0, 1), 1.2), False)
sketch24.addConstraint([
    Sketcher.Constraint("Diameter", 0, Q("2.5 mm")),
    Sketcher.Constraint("DistanceX", -1, 1, 0, 3, Q("53.345822 mm")),
    Sketcher.Constraint("DistanceY", 0, 3, -1, 1, Q("51.880148 mm")),
])
pocket20 = body.newObject("PartDesign::Pocket", "Pocket019")
pocket20.Profile = sketch24
pocket20.Length = 3

sketch25 = body.newObject("Sketcher::SketchObject", "Sketch024")
sketch25.AttachmentSupport = (doc.getObject("XY_Plane"), [""])
sketch25.MapMode = "FlatFace"
sketch25.AttachmentOffset = App.Placement(V(0, 0, 3), App.Rotation())
sketch25.addGeometry(Part.Circle(V(-6.7, -51.9, 0), V(0, 0, 1), 1.2), False)
sketch25.addConstraint([
    Sketcher.Constraint("Diameter", 0, Q("2.5 mm")),
    Sketcher.Constraint("DistanceX", 0, 3, -1, 1, Q("6.654178 mm")),
    Sketcher.Constraint("DistanceY", 0, 3, -1, 1, Q("51.880148 mm")),
])
pocket21 = body.newObject("PartDesign::Pocket", "Pocket020")
pocket21.Profile = sketch25
pocket21.Length = 3

sketch26 = body.newObject("Sketcher::SketchObject", "Sketch025")
sketch26.AttachmentSupport = (doc.getObject("XY_Plane"), [""])
sketch26.MapMode = "FlatFace"
sketch26.AttachmentOffset = App.Placement(V(0, 0, 3), App.Rotation())
sketch26.addGeometry(Part.Circle(V(-61.7, -51.9, 0), V(0, 0, 1), 1.2), False)
sketch26.addConstraint([
    Sketcher.Constraint("Diameter", 0, Q("2.5 mm")),
    Sketcher.Constraint("DistanceX", 0, 3, -1, 1, Q("61.654178 mm")),
    Sketcher.Constraint("DistanceY", 0, 3, -1, 1, Q("51.880148 mm")),
])
pocket22 = body.newObject("PartDesign::Pocket", "Pocket021")
pocket22.Profile = sketch26
pocket22.Length = 3

sketch27 = body.newObject("Sketcher::SketchObject", "Sketch026")
sketch27.AttachmentSupport = (doc.getObject("XY_Plane"), [""])
sketch27.MapMode = "FlatFace"
sketch27.AttachmentOffset = App.Placement(V(0, 0, 3), App.Rotation())
add_polygon(sketch27, [(23.3, 10.1), (23.3, 9.1), (43.3, 9.1), (43.3, 10.1)])
sketch27.addConstraint([
    Sketcher.Constraint("Vertical", 0),
    Sketcher.Constraint("Horizontal", 1),
    Sketcher.Constraint("Vertical", 2),
    Sketcher.Constraint("Horizontal", 3),
    Sketcher.Constraint("DistanceX", 1, 1, 1, 2, Q("20 mm")),
    Sketcher.Constraint("DistanceY", 0, 2, 0, 1, Q("1 mm")),
    Sketcher.Constraint("DistanceX", -1, 1, 0, 2, Q("23.345822 mm")),
    Sketcher.Constraint("DistanceY", -1, 1, 0, 2, Q("9.119852 mm")),
])
pocket23 = body.newObject("PartDesign::Pocket", "Pocket022")
pocket23.Profile = sketch27
pocket23.Length = 10

sketch28 = body.newObject("Sketcher::SketchObject", "Sketch027")
sketch28.AttachmentSupport = (doc.getObject("XY_Plane"), [""])
sketch28.MapMode = "FlatFace"
sketch28.AttachmentOffset = App.Placement(V(0, 0, 3), App.Rotation())
sketch28.addGeometry(Part.Circle(V(-61.8, -20, 0), V(0, 0, 1), 0.8), False)
sketch28.addConstraint([
    Sketcher.Constraint("Diameter", 0, Q("1.5 mm")),
    Sketcher.Constraint("DistanceX", 0, 3, -1, 1, Q("61.804178 mm")),
    Sketcher.Constraint("DistanceY", 0, 3, -1, 1, Q("20.030148 mm")),
])
pocket24 = body.newObject("PartDesign::Pocket", "Pocket023")
pocket24.Profile = sketch28
pocket24.Length = 10

sketch29 = body.newObject("Sketcher::SketchObject", "Sketch028")
sketch29.AttachmentSupport = (doc.getObject("XY_Plane"), [""])
sketch29.MapMode = "FlatFace"
sketch29.AttachmentOffset = App.Placement(V(0, 0, 3), App.Rotation())
sketch29.addGeometry(Part.Circle(V(-79.3, -20, 0), V(0, 0, 1), 0.8), False)
sketch29.addConstraint([
    Sketcher.Constraint("Diameter", 0, Q("1.5 mm")),
    Sketcher.Constraint("DistanceX", 0, 3, -1, 1, Q("79.304178 mm")),
    Sketcher.Constraint("DistanceY", 0, 3, -1, 1, Q("20.030148 mm")),
])
pocket25 = body.newObject("PartDesign::Pocket", "Pocket024")
pocket25.Profile = sketch29
pocket25.Length = 10

sketch30 = body.newObject("Sketcher::SketchObject", "Sketch029")
sketch30.AttachmentSupport = (doc.getObject("XY_Plane"), [""])
sketch30.MapMode = "FlatFace"
sketch30.AttachmentOffset = App.Placement(V(0, 0, 3), App.Rotation())
sketch30.addGeometry(Part.Circle(V(-87.4, -42.6, 0), V(0, 0, 1), 1.5), False)
sketch30.addConstraint([
    Sketcher.Constraint("Diameter", 0, Q("3 mm")),
    Sketcher.Constraint("DistanceX", 0, 3, -1, 1, Q("87.444178 mm")),
    Sketcher.Constraint("DistanceY", 0, 3, -1, 1, Q("42.580148 mm")),
])
pocket26 = body.newObject("PartDesign::Pocket", "Pocket025")
pocket26.Profile = sketch30
pocket26.Length = 10

sketch31 = body.newObject("Sketcher::SketchObject", "Sketch030")
sketch31.AttachmentSupport = (doc.getObject("XY_Plane"), [""])
sketch31.MapMode = "FlatFace"
sketch31.AttachmentOffset = App.Placement(V(0, 0, 3), App.Rotation())
sketch31.addGeometry(Part.Circle(V(-18.8, -26, 0), V(0, 0, 1), 0.8), False)
sketch31.addConstraint([
    Sketcher.Constraint("Diameter", 0, Q("1.5 mm")),
    Sketcher.Constraint("DistanceX", 0, 3, -1, 1, Q("18.804178 mm")),
    Sketcher.Constraint("DistanceY", 0, 3, -1, 1, Q("26.030148 mm")),
])
pocket27 = body.newObject("PartDesign::Pocket", "Pocket026")
pocket27.Profile = sketch31
pocket27.Length = 10

sketch32 = body.newObject("Sketcher::SketchObject", "Sketch031")
sketch32.AttachmentSupport = (doc.getObject("XY_Plane"), [""])
sketch32.MapMode = "FlatFace"
sketch32.AttachmentOffset = App.Placement(V(0, 0, 3), App.Rotation())
sketch32.addGeometry(Part.Circle(V(-36.3, -26, 0), V(0, 0, 1), 0.8), False)
sketch32.addConstraint([
    Sketcher.Constraint("Diameter", 0, Q("1.5 mm")),
    Sketcher.Constraint("DistanceX", 0, 3, -1, 1, Q("36.304178 mm")),
    Sketcher.Constraint("DistanceY", 0, 3, -1, 1, Q("26.030148 mm")),
])
pocket28 = body.newObject("PartDesign::Pocket", "Pocket027")
pocket28.Profile = sketch32
pocket28.Length = 10

sketch33 = body.newObject("Sketcher::SketchObject", "Sketch032")
sketch33.AttachmentSupport = (doc.getObject("XY_Plane"), [""])
sketch33.MapMode = "FlatFace"
sketch33.AttachmentOffset = App.Placement(V(0, 0, 3), App.Rotation())
sketch33.addGeometry(Part.Circle(V(1.3, 3.1, 0), V(0, 0, 1), 1.5), False)
sketch33.addConstraint([
    Sketcher.Constraint("Diameter", 0, Q("3 mm")),
    Sketcher.Constraint("DistanceX", -1, 1, 0, 3, Q("1.345822 mm")),
    Sketcher.Constraint("DistanceY", -1, 1, 0, 3, Q("3.119852 mm")),
])
pocket29 = body.newObject("PartDesign::Pocket", "Pocket028")
pocket29.Profile = sketch33
pocket29.Length = 10

sketch34 = body.newObject("Sketcher::SketchObject", "Sketch033")
sketch34.AttachmentSupport = (doc.getObject("XY_Plane"), [""])
sketch34.MapMode = "FlatFace"
sketch34.AttachmentOffset = App.Placement(V(0, 0, 3), App.Rotation())
sketch34.addGeometry(Part.Circle(V(-107.4, -29.6, 0), V(0, 0, 1), 1.5), False)
sketch34.addConstraint([
    Sketcher.Constraint("Diameter", 0, Q("3 mm")),
    Sketcher.Constraint("DistanceX", 0, 3, -1, 1, Q("107.444178 mm")),
    Sketcher.Constraint("DistanceY", 0, 3, -1, 1, Q("29.580148 mm")),
])
pocket30 = body.newObject("PartDesign::Pocket", "Pocket029")
pocket30.Profile = sketch34
pocket30.Length = 10

sketch35 = body.newObject("Sketcher::SketchObject", "Sketch034")
sketch35.AttachmentSupport = (doc.getObject("XY_Plane"), [""])
sketch35.MapMode = "FlatFace"
sketch35.AttachmentOffset = App.Placement(V(0, 0, 3), App.Rotation())
sketch35.addGeometry(Part.Circle(V(-127.4, -20.6, 0), V(0, 0, 1), 1.5), False)
sketch35.addConstraint([
    Sketcher.Constraint("Diameter", 0, Q("3 mm")),
    Sketcher.Constraint("DistanceX", 0, 3, -1, 1, Q("127.444178 mm")),
    Sketcher.Constraint("DistanceY", 0, 3, -1, 1, Q("20.580148 mm")),
])
pocket31 = body.newObject("PartDesign::Pocket", "Pocket030")
pocket31.Profile = sketch35
pocket31.Length = 10

sketch36 = body.newObject("Sketcher::SketchObject", "Sketch035")
sketch36.AttachmentSupport = (doc.getObject("XY_Plane"), [""])
sketch36.MapMode = "FlatFace"
sketch36.AttachmentOffset = App.Placement(V(0, 0, 3), App.Rotation())
sketch36.addGeometry([
    Part.LineSegment(V(-217, 33, 0), V(-222, 33, 0)),
    Part.LineSegment(V(-222, 33, 0), V(-222, 28, 0)),
    Part.ArcOfCircle(Part.Circle(V(-217, 28, 0), V(0, 0, 1), 5), math.radians(90), math.radians(180)),
], False)
sketch36.addConstraint([
    Sketcher.Constraint("Coincident", 0, 2, 1, 1),
    Sketcher.Constraint("Tangent", 1, 2, 2, 2),
    Sketcher.Constraint("Tangent", 2, 1, 0, 1),
    Sketcher.Constraint("Horizontal", 0),
    Sketcher.Constraint("Vertical", 1),
    Sketcher.Constraint("Radius", 2, Q("5 mm")),
    Sketcher.Constraint("DistanceX", 2, 3, -1, 1, Q("216.654178 mm")),
    Sketcher.Constraint("DistanceY", -1, 1, 2, 3, Q("28.119852 mm")),
])
pocket32 = body.newObject("PartDesign::Pocket", "Pocket031")
pocket32.Profile = sketch36
pocket32.Length = 10

sketch37 = body.newObject("Sketcher::SketchObject", "Sketch036")
sketch37.AttachmentSupport = (doc.getObject("XY_Plane"), [""])
sketch37.MapMode = "FlatFace"
sketch37.AttachmentOffset = App.Placement(V(0, 0, 3), App.Rotation())
sketch37.addGeometry([
    Part.LineSegment(V(-192, -52, 0), V(-192, -57, 0)),
    Part.LineSegment(V(-192, -57, 0), V(-187, -57, 0)),
    Part.ArcOfCircle(Part.Circle(V(-187, -52, 0), V(0, 0, 1), 5), math.radians(180), math.radians(270)),
], False)
sketch37.addConstraint([
    Sketcher.Constraint("Coincident", 0, 2, 1, 1),
    Sketcher.Constraint("Tangent", 1, 2, 2, 2),
    Sketcher.Constraint("Tangent", 2, 1, 0, 1),
    Sketcher.Constraint("Vertical", 0),
    Sketcher.Constraint("Horizontal", 1),
    Sketcher.Constraint("Radius", 2, Q("5 mm")),
    Sketcher.Constraint("DistanceX", 2, 3, -1, 1, Q("186.654178 mm")),
    Sketcher.Constraint("DistanceY", 2, 3, -1, 1, Q("51.880148 mm")),
])
pocket33 = body.newObject("PartDesign::Pocket", "Pocket032")
pocket33.Profile = sketch37
pocket33.Length = 10

sketch38 = body.newObject("Sketcher::SketchObject", "Sketch037")
sketch38.AttachmentSupport = (doc.getObject("XY_Plane"), [""])
sketch38.MapMode = "FlatFace"
sketch38.AttachmentOffset = App.Placement(V(0, 0, 3), App.Rotation())
sketch38.addGeometry([
    Part.LineSegment(V(-212, 23, 0), V(-212, 18, 0)),
    Part.ArcOfCircle(Part.Circle(V(-207, 18, 0), V(0, 0, 1), 5), math.radians(90), math.radians(180)),
    Part.LineSegment(V(-207, 23, 0), V(-212, 23, 0)),
    Part.LineSegment(V(-212, 8, 0), V(-212, 3, 0)),
    Part.LineSegment(V(-212, 3, 0), V(-207, 3, 0)),
    Part.ArcOfCircle(Part.Circle(V(-207, 8, 0), V(0, 0, 1), 5), math.radians(180), math.radians(270)),
    Part.LineSegment(V(-152, 23, 0), V(-157, 23, 0)),
    Part.ArcOfCircle(Part.Circle(V(-157, 18, 0), V(0, 0, 1), 5), math.radians(0), math.radians(90)),
    Part.LineSegment(V(-152, 18, 0), V(-152, 23, 0)),
    Part.LineSegment(V(-157, 3, 0), V(-152, 3, 0)),
    Part.LineSegment(V(-152, 3, 0), V(-152, 8, 0)),
    Part.ArcOfCircle(Part.Circle(V(-157, 8, 0), V(0, 0, 1), 5), math.radians(-90), math.radians(0)),
], False)
sketch38.addConstraint([
    Sketcher.Constraint("Tangent", 0, 2, 1, 2),
    Sketcher.Constraint("Tangent", 1, 1, 2, 1),
    Sketcher.Constraint("Coincident", 2, 2, 0, 1),
    Sketcher.Constraint("Coincident", 3, 2, 4, 1),
    Sketcher.Constraint("Tangent", 4, 2, 5, 2),
    Sketcher.Constraint("Tangent", 5, 1, 3, 1),
    Sketcher.Constraint("Tangent", 6, 2, 7, 2),
    Sketcher.Constraint("Tangent", 7, 1, 8, 1),
    Sketcher.Constraint("Coincident", 8, 2, 6, 1),
    Sketcher.Constraint("Coincident", 9, 2, 10, 1),
    Sketcher.Constraint("Tangent", 10, 2, 11, 2),
    Sketcher.Constraint("Tangent", 11, 1, 9, 1),
    Sketcher.Constraint("Vertical", 0),
    Sketcher.Constraint("Horizontal", 2),
    Sketcher.Constraint("Vertical", 3),
    Sketcher.Constraint("Horizontal", 4),
    Sketcher.Constraint("Horizontal", 6),
    Sketcher.Constraint("Vertical", 8),
    Sketcher.Constraint("Horizontal", 9),
    Sketcher.Constraint("Vertical", 10),
    Sketcher.Constraint("Equal", 1, 5),
    Sketcher.Constraint("Equal", 5, 7),
    Sketcher.Constraint("Equal", 7, 11),
    Sketcher.Constraint("Horizontal", 1, 3, 7, 3),
    Sketcher.Constraint("Horizontal", 5, 3, 11, 3),
    Sketcher.Constraint("Vertical", 1, 3, 5, 3),
    Sketcher.Constraint("Vertical", 7, 3, 11, 3),
    Sketcher.Constraint("Radius", 1, Q("5 mm")),
    Sketcher.Constraint("DistanceY", 5, 3, 1, 3, Q("10 mm")),
    Sketcher.Constraint("DistanceX", 1, 3, 7, 3, Q("50 mm")),
    Sketcher.Constraint("DistanceX", 1, 3, -1, 1, Q("206.654178 mm")),
    Sketcher.Constraint("DistanceY", -1, 1, 1, 3, Q("18.119852 mm")),
])
pad5 = body.newObject("PartDesign::Pad", "Pad004")
pad5.Profile = sketch38
pad5.Length = 3
pad5.Reversed = True

doc.recompute()
